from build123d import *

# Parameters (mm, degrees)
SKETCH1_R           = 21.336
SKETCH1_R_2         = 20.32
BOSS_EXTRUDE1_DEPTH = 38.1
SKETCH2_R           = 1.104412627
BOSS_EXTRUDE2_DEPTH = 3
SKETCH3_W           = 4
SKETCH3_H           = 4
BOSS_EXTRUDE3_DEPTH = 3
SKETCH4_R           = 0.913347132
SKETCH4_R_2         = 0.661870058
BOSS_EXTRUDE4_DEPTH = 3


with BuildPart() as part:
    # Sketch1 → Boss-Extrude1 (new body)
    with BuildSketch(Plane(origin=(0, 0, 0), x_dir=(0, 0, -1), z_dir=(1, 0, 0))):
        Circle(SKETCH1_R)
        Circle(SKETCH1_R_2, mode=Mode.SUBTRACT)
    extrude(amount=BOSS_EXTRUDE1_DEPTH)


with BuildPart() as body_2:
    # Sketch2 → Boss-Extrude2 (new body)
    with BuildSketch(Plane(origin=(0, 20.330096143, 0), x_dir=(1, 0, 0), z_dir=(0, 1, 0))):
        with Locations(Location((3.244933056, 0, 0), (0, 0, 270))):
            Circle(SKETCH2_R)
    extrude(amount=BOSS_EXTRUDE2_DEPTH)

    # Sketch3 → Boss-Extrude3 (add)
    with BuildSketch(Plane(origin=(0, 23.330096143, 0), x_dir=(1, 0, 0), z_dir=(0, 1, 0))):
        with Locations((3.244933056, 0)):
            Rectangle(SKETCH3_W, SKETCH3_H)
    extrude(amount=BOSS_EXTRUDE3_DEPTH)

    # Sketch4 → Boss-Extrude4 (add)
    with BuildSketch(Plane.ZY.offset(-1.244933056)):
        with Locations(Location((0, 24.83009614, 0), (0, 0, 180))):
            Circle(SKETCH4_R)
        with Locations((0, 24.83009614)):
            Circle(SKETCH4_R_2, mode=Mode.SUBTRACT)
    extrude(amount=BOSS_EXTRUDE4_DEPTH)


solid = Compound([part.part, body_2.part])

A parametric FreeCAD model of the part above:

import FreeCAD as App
import Part
import Sketcher
Q = App.Units.Quantity

doc = App.newDocument("Part")
params = doc.addObject("Spreadsheet::Sheet", "Params")
for row, (alias, value) in enumerate([
    ("sketch1_diameter", "1.6 in"),
    ("sketch1_diameter2", "1.68 in"),
    ("pad1_length", "1.5 in"),
    ("pad2_length", "3 mm"),
    ("pad3_length", "3 mm"),
    ("pad4_length", "3 mm"),
], start=1):
    params.set(f"A{row}", alias)
    params.set(f"B{row}", "=" + value)
    params.setAlias(f"B{row}", alias)

body = doc.addObject("PartDesign::Body", "Body")

sketch1 = doc.addObject("Sketcher::SketchObject", "Sketch")
body.addObject(sketch1)
sketch1.AttachmentSupport = (doc.YZ_Plane, [""])
sketch1.MapMode = "FlatFace"
sketch1.addGeometry(Part.Circle(App.Vector(0, 0, 0), App.Vector(0, 0, 1), 21), False)
sketch1.addGeometry(Part.Circle(App.Vector(0, 0, 0), App.Vector(0, 0, 1), 20), False)
sketch1.addConstraint(Sketcher.Constraint("Coincident", 0, 3, -1, 1))
sketch1.addConstraint(Sketcher.Constraint("Coincident", 1, 3, -1, 1))
sketch1.addConstraint(Sketcher.Constraint("Diameter", 1, Q("1.6 in")))
sketch1.addConstraint(Sketcher.Constraint("Diameter", 0, Q("1.68 in")))
sketch1.setExpression("Constraints[2]", "Params.sketch1_diameter")
sketch1.setExpression("Constraints[3]", "Params.sketch1_diameter2")
pad1 = doc.addObject("PartDesign::Pad", "Pad")
body.addObject(pad1)
pad1.Profile = sketch1
pad1.setExpression("Length", "Params.pad1_length")
body2 = doc.addObject("PartDesign::Body", "Body001")

sketch2 = doc.addObject("Sketcher::SketchObject", "Sketch001")
body2.addObject(sketch2)
sketch2.AttachmentSupport = (doc.getObject("XZ_Plane001"), [""])
sketch2.MapMode = "FlatFace"
sketch2.AttachmentOffset = App.Placement(App.Vector(0, 0, -20.330096), App.Rotation())
sketch2.addGeometry(Part.Circle(App.Vector(3.2, 0, 0), App.Vector(0, 0, 1), 1.1), False)
sketch2.addConstraint(Sketcher.Constraint("PointOnObject", 0, 3, -1))
sketch2.addConstraint(Sketcher.Constraint("Diameter", 0, 2.208825))
sketch2.addConstraint(Sketcher.Constraint("DistanceX", -1, 1, 0, 3, 3.244933))
pad2 = doc.addObject("PartDesign::Pad", "Pad001")
body2.addObject(pad2)
pad2.Profile = sketch2
pad2.setExpression("Length", "Params.pad2_length")
pad2.Reversed = True

sketch3 = doc.addObject("Sketcher::SketchObject", "Sketch002")
body2.addObject(sketch3)
sketch3.AttachmentSupport = (doc.getObject("XZ_Plane001"), [""])
sketch3.MapMode = "FlatFace"
sketch3.AttachmentOffset = App.Placement(App.Vector(0, 0, -23.330096), App.Rotation())
sketch3.addGeometry(Part.LineSegment(App.Vector(1.2, -2, 0), App.Vector(1.2, 2, 0)), False)
sketch3.addGeometry(Part.LineSegment(App.Vector(1.2, 2, 0), App.Vector(5.2, 2, 0)), False)
sketch3.addGeometry(Part.LineSegment(App.Vector(5.2, 2, 0), App.Vector(5.2, -2, 0)), False)
sketch3.addGeometry(Part.LineSegment(App.Vector(5.2, -2, 0), App.Vector(1.2, -2, 0)), False)
sketch3.addConstraint(Sketcher.Constraint("Coincident", 0, 2, 1, 1))
sketch3.addConstraint(Sketcher.Constraint("Coincident", 1, 2, 2, 1))
sketch3.addConstraint(Sketcher.Constraint("Coincident", 2, 2, 3, 1))
sketch3.addConstraint(Sketcher.Constraint("Coincident", 3, 2, 0, 1))
sketch3.addConstraint(Sketcher.Constraint("Vertical", 0))
sketch3.addConstraint(Sketcher.Constraint("Horizontal", 1))
sketch3.addConstraint(Sketcher.Constraint("Vertical", 2))
sketch3.addConstraint(Sketcher.Constraint("Horizontal", 3))
sketch3.addConstraint(Sketcher.Constraint("Equal", 3, 0))
sketch3.addConstraint(Sketcher.Constraint("DistanceX", 1, 1, 1, 2, 4.0))
sketch3.addConstraint(Sketcher.Constraint("DistanceY", -1, 1, 0, 2, 2.0))
sketch3.addConstraint(Sketcher.Constraint("DistanceX", -1, 1, 0, 2, 1.244933))
pad3 = doc.addObject("PartDesign::Pad", "Pad002")
body2.addObject(pad3)
pad3.Profile = sketch3
pad3.setExpression("Length", "Params.pad3_length")
pad3.Reversed = True

sketch4 = doc.addObject("Sketcher::SketchObject", "Sketch003")
body2.addObject(sketch4)
sketch4.AttachmentSupport = (doc.getObject("YZ_Plane001"), [""])
sketch4.MapMode = "FlatFace"
sketch4.AttachmentOffset = App.Placement(App.Vector(0, 0, 1.244933), App.Rotation())
sketch4.addGeometry(Part.Circle(App.Vector(24.8, 0, 0), App.Vector(0, 0, 1), 0.9), False)
sketch4.addGeometry(Part.Circle(App.Vector(24.8, 0, 0), App.Vector(0, 0, 1), 0.7), False)
sketch4.addConstraint(Sketcher.Constraint("Coincident", 1, 3, 0, 3))
sketch4.addConstraint(Sketcher.Constraint("PointOnObject", 0, 3, -1))
sketch4.addConstraint(Sketcher.Constraint("Diameter", 1, 1.32374))
sketch4.addConstraint(Sketcher.Constraint("Diameter", 0, 1.826694))
sketch4.addConstraint(Sketcher.Constraint("DistanceX", -1, 1, 0, 3, 24.830096))
pad4 = doc.addObject("PartDesign::Pad", "Pad003")
body2.addObject(pad4)
pad4.Profile = sketch4
pad4.setExpression("Length", "Params.pad4_length")
pad4.Reversed = True

doc.recompute()
